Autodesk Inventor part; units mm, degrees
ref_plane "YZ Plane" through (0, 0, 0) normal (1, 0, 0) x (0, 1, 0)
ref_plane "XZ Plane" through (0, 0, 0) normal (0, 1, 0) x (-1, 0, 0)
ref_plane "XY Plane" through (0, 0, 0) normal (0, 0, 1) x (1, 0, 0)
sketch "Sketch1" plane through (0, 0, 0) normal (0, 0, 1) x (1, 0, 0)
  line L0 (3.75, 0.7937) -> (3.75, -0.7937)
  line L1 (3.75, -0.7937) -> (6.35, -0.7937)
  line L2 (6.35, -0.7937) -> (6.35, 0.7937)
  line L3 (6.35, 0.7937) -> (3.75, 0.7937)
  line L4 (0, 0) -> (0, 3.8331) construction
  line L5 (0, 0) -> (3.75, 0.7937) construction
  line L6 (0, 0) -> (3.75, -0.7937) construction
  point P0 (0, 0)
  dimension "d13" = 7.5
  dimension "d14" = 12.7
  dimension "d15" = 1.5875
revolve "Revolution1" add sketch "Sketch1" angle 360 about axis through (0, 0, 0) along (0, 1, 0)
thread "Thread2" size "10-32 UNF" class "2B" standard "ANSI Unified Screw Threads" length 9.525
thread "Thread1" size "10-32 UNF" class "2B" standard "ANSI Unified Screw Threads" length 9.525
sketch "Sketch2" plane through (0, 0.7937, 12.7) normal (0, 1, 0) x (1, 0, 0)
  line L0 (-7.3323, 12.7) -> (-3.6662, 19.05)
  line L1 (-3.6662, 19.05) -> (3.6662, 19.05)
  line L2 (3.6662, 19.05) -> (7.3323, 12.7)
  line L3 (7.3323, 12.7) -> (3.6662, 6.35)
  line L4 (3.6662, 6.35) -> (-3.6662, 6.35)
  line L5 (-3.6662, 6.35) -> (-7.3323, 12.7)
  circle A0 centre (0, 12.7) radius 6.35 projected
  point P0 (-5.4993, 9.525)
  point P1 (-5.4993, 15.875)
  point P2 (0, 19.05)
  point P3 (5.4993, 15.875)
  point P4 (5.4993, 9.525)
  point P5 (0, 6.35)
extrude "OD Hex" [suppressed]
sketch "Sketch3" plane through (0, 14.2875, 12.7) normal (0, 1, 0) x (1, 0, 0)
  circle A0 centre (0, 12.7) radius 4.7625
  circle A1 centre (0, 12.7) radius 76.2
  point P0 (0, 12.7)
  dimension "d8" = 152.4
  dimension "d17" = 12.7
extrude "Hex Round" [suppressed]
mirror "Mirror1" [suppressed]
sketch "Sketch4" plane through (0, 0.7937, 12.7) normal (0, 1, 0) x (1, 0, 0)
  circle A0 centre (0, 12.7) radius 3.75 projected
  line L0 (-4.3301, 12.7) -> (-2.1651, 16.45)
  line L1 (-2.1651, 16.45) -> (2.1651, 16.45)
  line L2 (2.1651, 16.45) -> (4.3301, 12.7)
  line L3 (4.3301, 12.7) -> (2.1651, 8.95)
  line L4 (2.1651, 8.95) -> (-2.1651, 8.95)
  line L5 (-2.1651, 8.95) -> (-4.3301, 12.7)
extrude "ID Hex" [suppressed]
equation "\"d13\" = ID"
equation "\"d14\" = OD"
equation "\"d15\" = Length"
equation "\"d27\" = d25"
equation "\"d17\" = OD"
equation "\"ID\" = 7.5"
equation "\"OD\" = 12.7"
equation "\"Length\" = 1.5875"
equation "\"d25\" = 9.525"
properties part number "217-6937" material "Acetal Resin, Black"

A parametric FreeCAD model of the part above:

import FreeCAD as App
import Part
import Sketcher

V = App.Vector


def add_polygon(sketch, points):
    """Adds a closed chain of lines whose ends are joined by coincident constraints."""
    first, n = sketch.GeometryCount, len(points)
    for a, b in zip(points, points[1:] + points[:1]):
        sketch.addGeometry(Part.LineSegment(App.Vector(*a, 0), App.Vector(*b, 0)), False)
    for i in range(n):
        sketch.addConstraint(Sketcher.Constraint("Coincident", first + i, 2, first + (i + 1) % n, 1))

doc = App.newDocument("Part")
body = doc.addObject("PartDesign::Body", "Body")

# Sketch on XY plane
sketch1 = body.newObject("Sketcher::SketchObject", "Sketch")
sketch1.AttachmentSupport = (doc.getObject("XY_Plane"), [""])
sketch1.MapMode = "FlatFace"
add_polygon(sketch1, [(6.3, 0.8), (3.8, 0.8), (3.8, -0.8), (6.3, -0.8)])  # lines 0-3
sketch1.addConstraint([
    Sketcher.Constraint("Horizontal", 0),
    Sketcher.Constraint("Vertical", 1),
    Sketcher.Constraint("Horizontal", 2),
    Sketcher.Constraint("Vertical", 3),
    Sketcher.Constraint("DistanceX", 0, 2, 0, 1, 2.6),
    Sketcher.Constraint("DistanceY", 1, 2, 1, 1, 1.5874),
    Sketcher.Constraint("DistanceX", -1, 1, 0, 2, 3.75),
    Sketcher.Constraint("DistanceY", -1, 1, 0, 2, 0.7937),
])
revolution = body.newObject("PartDesign::Revolution", "Revolution")
revolution.Profile = sketch1
revolution.ReferenceAxis = (sketch1, ["V_Axis"])
revolution.Angle = 360

doc.recompute()
